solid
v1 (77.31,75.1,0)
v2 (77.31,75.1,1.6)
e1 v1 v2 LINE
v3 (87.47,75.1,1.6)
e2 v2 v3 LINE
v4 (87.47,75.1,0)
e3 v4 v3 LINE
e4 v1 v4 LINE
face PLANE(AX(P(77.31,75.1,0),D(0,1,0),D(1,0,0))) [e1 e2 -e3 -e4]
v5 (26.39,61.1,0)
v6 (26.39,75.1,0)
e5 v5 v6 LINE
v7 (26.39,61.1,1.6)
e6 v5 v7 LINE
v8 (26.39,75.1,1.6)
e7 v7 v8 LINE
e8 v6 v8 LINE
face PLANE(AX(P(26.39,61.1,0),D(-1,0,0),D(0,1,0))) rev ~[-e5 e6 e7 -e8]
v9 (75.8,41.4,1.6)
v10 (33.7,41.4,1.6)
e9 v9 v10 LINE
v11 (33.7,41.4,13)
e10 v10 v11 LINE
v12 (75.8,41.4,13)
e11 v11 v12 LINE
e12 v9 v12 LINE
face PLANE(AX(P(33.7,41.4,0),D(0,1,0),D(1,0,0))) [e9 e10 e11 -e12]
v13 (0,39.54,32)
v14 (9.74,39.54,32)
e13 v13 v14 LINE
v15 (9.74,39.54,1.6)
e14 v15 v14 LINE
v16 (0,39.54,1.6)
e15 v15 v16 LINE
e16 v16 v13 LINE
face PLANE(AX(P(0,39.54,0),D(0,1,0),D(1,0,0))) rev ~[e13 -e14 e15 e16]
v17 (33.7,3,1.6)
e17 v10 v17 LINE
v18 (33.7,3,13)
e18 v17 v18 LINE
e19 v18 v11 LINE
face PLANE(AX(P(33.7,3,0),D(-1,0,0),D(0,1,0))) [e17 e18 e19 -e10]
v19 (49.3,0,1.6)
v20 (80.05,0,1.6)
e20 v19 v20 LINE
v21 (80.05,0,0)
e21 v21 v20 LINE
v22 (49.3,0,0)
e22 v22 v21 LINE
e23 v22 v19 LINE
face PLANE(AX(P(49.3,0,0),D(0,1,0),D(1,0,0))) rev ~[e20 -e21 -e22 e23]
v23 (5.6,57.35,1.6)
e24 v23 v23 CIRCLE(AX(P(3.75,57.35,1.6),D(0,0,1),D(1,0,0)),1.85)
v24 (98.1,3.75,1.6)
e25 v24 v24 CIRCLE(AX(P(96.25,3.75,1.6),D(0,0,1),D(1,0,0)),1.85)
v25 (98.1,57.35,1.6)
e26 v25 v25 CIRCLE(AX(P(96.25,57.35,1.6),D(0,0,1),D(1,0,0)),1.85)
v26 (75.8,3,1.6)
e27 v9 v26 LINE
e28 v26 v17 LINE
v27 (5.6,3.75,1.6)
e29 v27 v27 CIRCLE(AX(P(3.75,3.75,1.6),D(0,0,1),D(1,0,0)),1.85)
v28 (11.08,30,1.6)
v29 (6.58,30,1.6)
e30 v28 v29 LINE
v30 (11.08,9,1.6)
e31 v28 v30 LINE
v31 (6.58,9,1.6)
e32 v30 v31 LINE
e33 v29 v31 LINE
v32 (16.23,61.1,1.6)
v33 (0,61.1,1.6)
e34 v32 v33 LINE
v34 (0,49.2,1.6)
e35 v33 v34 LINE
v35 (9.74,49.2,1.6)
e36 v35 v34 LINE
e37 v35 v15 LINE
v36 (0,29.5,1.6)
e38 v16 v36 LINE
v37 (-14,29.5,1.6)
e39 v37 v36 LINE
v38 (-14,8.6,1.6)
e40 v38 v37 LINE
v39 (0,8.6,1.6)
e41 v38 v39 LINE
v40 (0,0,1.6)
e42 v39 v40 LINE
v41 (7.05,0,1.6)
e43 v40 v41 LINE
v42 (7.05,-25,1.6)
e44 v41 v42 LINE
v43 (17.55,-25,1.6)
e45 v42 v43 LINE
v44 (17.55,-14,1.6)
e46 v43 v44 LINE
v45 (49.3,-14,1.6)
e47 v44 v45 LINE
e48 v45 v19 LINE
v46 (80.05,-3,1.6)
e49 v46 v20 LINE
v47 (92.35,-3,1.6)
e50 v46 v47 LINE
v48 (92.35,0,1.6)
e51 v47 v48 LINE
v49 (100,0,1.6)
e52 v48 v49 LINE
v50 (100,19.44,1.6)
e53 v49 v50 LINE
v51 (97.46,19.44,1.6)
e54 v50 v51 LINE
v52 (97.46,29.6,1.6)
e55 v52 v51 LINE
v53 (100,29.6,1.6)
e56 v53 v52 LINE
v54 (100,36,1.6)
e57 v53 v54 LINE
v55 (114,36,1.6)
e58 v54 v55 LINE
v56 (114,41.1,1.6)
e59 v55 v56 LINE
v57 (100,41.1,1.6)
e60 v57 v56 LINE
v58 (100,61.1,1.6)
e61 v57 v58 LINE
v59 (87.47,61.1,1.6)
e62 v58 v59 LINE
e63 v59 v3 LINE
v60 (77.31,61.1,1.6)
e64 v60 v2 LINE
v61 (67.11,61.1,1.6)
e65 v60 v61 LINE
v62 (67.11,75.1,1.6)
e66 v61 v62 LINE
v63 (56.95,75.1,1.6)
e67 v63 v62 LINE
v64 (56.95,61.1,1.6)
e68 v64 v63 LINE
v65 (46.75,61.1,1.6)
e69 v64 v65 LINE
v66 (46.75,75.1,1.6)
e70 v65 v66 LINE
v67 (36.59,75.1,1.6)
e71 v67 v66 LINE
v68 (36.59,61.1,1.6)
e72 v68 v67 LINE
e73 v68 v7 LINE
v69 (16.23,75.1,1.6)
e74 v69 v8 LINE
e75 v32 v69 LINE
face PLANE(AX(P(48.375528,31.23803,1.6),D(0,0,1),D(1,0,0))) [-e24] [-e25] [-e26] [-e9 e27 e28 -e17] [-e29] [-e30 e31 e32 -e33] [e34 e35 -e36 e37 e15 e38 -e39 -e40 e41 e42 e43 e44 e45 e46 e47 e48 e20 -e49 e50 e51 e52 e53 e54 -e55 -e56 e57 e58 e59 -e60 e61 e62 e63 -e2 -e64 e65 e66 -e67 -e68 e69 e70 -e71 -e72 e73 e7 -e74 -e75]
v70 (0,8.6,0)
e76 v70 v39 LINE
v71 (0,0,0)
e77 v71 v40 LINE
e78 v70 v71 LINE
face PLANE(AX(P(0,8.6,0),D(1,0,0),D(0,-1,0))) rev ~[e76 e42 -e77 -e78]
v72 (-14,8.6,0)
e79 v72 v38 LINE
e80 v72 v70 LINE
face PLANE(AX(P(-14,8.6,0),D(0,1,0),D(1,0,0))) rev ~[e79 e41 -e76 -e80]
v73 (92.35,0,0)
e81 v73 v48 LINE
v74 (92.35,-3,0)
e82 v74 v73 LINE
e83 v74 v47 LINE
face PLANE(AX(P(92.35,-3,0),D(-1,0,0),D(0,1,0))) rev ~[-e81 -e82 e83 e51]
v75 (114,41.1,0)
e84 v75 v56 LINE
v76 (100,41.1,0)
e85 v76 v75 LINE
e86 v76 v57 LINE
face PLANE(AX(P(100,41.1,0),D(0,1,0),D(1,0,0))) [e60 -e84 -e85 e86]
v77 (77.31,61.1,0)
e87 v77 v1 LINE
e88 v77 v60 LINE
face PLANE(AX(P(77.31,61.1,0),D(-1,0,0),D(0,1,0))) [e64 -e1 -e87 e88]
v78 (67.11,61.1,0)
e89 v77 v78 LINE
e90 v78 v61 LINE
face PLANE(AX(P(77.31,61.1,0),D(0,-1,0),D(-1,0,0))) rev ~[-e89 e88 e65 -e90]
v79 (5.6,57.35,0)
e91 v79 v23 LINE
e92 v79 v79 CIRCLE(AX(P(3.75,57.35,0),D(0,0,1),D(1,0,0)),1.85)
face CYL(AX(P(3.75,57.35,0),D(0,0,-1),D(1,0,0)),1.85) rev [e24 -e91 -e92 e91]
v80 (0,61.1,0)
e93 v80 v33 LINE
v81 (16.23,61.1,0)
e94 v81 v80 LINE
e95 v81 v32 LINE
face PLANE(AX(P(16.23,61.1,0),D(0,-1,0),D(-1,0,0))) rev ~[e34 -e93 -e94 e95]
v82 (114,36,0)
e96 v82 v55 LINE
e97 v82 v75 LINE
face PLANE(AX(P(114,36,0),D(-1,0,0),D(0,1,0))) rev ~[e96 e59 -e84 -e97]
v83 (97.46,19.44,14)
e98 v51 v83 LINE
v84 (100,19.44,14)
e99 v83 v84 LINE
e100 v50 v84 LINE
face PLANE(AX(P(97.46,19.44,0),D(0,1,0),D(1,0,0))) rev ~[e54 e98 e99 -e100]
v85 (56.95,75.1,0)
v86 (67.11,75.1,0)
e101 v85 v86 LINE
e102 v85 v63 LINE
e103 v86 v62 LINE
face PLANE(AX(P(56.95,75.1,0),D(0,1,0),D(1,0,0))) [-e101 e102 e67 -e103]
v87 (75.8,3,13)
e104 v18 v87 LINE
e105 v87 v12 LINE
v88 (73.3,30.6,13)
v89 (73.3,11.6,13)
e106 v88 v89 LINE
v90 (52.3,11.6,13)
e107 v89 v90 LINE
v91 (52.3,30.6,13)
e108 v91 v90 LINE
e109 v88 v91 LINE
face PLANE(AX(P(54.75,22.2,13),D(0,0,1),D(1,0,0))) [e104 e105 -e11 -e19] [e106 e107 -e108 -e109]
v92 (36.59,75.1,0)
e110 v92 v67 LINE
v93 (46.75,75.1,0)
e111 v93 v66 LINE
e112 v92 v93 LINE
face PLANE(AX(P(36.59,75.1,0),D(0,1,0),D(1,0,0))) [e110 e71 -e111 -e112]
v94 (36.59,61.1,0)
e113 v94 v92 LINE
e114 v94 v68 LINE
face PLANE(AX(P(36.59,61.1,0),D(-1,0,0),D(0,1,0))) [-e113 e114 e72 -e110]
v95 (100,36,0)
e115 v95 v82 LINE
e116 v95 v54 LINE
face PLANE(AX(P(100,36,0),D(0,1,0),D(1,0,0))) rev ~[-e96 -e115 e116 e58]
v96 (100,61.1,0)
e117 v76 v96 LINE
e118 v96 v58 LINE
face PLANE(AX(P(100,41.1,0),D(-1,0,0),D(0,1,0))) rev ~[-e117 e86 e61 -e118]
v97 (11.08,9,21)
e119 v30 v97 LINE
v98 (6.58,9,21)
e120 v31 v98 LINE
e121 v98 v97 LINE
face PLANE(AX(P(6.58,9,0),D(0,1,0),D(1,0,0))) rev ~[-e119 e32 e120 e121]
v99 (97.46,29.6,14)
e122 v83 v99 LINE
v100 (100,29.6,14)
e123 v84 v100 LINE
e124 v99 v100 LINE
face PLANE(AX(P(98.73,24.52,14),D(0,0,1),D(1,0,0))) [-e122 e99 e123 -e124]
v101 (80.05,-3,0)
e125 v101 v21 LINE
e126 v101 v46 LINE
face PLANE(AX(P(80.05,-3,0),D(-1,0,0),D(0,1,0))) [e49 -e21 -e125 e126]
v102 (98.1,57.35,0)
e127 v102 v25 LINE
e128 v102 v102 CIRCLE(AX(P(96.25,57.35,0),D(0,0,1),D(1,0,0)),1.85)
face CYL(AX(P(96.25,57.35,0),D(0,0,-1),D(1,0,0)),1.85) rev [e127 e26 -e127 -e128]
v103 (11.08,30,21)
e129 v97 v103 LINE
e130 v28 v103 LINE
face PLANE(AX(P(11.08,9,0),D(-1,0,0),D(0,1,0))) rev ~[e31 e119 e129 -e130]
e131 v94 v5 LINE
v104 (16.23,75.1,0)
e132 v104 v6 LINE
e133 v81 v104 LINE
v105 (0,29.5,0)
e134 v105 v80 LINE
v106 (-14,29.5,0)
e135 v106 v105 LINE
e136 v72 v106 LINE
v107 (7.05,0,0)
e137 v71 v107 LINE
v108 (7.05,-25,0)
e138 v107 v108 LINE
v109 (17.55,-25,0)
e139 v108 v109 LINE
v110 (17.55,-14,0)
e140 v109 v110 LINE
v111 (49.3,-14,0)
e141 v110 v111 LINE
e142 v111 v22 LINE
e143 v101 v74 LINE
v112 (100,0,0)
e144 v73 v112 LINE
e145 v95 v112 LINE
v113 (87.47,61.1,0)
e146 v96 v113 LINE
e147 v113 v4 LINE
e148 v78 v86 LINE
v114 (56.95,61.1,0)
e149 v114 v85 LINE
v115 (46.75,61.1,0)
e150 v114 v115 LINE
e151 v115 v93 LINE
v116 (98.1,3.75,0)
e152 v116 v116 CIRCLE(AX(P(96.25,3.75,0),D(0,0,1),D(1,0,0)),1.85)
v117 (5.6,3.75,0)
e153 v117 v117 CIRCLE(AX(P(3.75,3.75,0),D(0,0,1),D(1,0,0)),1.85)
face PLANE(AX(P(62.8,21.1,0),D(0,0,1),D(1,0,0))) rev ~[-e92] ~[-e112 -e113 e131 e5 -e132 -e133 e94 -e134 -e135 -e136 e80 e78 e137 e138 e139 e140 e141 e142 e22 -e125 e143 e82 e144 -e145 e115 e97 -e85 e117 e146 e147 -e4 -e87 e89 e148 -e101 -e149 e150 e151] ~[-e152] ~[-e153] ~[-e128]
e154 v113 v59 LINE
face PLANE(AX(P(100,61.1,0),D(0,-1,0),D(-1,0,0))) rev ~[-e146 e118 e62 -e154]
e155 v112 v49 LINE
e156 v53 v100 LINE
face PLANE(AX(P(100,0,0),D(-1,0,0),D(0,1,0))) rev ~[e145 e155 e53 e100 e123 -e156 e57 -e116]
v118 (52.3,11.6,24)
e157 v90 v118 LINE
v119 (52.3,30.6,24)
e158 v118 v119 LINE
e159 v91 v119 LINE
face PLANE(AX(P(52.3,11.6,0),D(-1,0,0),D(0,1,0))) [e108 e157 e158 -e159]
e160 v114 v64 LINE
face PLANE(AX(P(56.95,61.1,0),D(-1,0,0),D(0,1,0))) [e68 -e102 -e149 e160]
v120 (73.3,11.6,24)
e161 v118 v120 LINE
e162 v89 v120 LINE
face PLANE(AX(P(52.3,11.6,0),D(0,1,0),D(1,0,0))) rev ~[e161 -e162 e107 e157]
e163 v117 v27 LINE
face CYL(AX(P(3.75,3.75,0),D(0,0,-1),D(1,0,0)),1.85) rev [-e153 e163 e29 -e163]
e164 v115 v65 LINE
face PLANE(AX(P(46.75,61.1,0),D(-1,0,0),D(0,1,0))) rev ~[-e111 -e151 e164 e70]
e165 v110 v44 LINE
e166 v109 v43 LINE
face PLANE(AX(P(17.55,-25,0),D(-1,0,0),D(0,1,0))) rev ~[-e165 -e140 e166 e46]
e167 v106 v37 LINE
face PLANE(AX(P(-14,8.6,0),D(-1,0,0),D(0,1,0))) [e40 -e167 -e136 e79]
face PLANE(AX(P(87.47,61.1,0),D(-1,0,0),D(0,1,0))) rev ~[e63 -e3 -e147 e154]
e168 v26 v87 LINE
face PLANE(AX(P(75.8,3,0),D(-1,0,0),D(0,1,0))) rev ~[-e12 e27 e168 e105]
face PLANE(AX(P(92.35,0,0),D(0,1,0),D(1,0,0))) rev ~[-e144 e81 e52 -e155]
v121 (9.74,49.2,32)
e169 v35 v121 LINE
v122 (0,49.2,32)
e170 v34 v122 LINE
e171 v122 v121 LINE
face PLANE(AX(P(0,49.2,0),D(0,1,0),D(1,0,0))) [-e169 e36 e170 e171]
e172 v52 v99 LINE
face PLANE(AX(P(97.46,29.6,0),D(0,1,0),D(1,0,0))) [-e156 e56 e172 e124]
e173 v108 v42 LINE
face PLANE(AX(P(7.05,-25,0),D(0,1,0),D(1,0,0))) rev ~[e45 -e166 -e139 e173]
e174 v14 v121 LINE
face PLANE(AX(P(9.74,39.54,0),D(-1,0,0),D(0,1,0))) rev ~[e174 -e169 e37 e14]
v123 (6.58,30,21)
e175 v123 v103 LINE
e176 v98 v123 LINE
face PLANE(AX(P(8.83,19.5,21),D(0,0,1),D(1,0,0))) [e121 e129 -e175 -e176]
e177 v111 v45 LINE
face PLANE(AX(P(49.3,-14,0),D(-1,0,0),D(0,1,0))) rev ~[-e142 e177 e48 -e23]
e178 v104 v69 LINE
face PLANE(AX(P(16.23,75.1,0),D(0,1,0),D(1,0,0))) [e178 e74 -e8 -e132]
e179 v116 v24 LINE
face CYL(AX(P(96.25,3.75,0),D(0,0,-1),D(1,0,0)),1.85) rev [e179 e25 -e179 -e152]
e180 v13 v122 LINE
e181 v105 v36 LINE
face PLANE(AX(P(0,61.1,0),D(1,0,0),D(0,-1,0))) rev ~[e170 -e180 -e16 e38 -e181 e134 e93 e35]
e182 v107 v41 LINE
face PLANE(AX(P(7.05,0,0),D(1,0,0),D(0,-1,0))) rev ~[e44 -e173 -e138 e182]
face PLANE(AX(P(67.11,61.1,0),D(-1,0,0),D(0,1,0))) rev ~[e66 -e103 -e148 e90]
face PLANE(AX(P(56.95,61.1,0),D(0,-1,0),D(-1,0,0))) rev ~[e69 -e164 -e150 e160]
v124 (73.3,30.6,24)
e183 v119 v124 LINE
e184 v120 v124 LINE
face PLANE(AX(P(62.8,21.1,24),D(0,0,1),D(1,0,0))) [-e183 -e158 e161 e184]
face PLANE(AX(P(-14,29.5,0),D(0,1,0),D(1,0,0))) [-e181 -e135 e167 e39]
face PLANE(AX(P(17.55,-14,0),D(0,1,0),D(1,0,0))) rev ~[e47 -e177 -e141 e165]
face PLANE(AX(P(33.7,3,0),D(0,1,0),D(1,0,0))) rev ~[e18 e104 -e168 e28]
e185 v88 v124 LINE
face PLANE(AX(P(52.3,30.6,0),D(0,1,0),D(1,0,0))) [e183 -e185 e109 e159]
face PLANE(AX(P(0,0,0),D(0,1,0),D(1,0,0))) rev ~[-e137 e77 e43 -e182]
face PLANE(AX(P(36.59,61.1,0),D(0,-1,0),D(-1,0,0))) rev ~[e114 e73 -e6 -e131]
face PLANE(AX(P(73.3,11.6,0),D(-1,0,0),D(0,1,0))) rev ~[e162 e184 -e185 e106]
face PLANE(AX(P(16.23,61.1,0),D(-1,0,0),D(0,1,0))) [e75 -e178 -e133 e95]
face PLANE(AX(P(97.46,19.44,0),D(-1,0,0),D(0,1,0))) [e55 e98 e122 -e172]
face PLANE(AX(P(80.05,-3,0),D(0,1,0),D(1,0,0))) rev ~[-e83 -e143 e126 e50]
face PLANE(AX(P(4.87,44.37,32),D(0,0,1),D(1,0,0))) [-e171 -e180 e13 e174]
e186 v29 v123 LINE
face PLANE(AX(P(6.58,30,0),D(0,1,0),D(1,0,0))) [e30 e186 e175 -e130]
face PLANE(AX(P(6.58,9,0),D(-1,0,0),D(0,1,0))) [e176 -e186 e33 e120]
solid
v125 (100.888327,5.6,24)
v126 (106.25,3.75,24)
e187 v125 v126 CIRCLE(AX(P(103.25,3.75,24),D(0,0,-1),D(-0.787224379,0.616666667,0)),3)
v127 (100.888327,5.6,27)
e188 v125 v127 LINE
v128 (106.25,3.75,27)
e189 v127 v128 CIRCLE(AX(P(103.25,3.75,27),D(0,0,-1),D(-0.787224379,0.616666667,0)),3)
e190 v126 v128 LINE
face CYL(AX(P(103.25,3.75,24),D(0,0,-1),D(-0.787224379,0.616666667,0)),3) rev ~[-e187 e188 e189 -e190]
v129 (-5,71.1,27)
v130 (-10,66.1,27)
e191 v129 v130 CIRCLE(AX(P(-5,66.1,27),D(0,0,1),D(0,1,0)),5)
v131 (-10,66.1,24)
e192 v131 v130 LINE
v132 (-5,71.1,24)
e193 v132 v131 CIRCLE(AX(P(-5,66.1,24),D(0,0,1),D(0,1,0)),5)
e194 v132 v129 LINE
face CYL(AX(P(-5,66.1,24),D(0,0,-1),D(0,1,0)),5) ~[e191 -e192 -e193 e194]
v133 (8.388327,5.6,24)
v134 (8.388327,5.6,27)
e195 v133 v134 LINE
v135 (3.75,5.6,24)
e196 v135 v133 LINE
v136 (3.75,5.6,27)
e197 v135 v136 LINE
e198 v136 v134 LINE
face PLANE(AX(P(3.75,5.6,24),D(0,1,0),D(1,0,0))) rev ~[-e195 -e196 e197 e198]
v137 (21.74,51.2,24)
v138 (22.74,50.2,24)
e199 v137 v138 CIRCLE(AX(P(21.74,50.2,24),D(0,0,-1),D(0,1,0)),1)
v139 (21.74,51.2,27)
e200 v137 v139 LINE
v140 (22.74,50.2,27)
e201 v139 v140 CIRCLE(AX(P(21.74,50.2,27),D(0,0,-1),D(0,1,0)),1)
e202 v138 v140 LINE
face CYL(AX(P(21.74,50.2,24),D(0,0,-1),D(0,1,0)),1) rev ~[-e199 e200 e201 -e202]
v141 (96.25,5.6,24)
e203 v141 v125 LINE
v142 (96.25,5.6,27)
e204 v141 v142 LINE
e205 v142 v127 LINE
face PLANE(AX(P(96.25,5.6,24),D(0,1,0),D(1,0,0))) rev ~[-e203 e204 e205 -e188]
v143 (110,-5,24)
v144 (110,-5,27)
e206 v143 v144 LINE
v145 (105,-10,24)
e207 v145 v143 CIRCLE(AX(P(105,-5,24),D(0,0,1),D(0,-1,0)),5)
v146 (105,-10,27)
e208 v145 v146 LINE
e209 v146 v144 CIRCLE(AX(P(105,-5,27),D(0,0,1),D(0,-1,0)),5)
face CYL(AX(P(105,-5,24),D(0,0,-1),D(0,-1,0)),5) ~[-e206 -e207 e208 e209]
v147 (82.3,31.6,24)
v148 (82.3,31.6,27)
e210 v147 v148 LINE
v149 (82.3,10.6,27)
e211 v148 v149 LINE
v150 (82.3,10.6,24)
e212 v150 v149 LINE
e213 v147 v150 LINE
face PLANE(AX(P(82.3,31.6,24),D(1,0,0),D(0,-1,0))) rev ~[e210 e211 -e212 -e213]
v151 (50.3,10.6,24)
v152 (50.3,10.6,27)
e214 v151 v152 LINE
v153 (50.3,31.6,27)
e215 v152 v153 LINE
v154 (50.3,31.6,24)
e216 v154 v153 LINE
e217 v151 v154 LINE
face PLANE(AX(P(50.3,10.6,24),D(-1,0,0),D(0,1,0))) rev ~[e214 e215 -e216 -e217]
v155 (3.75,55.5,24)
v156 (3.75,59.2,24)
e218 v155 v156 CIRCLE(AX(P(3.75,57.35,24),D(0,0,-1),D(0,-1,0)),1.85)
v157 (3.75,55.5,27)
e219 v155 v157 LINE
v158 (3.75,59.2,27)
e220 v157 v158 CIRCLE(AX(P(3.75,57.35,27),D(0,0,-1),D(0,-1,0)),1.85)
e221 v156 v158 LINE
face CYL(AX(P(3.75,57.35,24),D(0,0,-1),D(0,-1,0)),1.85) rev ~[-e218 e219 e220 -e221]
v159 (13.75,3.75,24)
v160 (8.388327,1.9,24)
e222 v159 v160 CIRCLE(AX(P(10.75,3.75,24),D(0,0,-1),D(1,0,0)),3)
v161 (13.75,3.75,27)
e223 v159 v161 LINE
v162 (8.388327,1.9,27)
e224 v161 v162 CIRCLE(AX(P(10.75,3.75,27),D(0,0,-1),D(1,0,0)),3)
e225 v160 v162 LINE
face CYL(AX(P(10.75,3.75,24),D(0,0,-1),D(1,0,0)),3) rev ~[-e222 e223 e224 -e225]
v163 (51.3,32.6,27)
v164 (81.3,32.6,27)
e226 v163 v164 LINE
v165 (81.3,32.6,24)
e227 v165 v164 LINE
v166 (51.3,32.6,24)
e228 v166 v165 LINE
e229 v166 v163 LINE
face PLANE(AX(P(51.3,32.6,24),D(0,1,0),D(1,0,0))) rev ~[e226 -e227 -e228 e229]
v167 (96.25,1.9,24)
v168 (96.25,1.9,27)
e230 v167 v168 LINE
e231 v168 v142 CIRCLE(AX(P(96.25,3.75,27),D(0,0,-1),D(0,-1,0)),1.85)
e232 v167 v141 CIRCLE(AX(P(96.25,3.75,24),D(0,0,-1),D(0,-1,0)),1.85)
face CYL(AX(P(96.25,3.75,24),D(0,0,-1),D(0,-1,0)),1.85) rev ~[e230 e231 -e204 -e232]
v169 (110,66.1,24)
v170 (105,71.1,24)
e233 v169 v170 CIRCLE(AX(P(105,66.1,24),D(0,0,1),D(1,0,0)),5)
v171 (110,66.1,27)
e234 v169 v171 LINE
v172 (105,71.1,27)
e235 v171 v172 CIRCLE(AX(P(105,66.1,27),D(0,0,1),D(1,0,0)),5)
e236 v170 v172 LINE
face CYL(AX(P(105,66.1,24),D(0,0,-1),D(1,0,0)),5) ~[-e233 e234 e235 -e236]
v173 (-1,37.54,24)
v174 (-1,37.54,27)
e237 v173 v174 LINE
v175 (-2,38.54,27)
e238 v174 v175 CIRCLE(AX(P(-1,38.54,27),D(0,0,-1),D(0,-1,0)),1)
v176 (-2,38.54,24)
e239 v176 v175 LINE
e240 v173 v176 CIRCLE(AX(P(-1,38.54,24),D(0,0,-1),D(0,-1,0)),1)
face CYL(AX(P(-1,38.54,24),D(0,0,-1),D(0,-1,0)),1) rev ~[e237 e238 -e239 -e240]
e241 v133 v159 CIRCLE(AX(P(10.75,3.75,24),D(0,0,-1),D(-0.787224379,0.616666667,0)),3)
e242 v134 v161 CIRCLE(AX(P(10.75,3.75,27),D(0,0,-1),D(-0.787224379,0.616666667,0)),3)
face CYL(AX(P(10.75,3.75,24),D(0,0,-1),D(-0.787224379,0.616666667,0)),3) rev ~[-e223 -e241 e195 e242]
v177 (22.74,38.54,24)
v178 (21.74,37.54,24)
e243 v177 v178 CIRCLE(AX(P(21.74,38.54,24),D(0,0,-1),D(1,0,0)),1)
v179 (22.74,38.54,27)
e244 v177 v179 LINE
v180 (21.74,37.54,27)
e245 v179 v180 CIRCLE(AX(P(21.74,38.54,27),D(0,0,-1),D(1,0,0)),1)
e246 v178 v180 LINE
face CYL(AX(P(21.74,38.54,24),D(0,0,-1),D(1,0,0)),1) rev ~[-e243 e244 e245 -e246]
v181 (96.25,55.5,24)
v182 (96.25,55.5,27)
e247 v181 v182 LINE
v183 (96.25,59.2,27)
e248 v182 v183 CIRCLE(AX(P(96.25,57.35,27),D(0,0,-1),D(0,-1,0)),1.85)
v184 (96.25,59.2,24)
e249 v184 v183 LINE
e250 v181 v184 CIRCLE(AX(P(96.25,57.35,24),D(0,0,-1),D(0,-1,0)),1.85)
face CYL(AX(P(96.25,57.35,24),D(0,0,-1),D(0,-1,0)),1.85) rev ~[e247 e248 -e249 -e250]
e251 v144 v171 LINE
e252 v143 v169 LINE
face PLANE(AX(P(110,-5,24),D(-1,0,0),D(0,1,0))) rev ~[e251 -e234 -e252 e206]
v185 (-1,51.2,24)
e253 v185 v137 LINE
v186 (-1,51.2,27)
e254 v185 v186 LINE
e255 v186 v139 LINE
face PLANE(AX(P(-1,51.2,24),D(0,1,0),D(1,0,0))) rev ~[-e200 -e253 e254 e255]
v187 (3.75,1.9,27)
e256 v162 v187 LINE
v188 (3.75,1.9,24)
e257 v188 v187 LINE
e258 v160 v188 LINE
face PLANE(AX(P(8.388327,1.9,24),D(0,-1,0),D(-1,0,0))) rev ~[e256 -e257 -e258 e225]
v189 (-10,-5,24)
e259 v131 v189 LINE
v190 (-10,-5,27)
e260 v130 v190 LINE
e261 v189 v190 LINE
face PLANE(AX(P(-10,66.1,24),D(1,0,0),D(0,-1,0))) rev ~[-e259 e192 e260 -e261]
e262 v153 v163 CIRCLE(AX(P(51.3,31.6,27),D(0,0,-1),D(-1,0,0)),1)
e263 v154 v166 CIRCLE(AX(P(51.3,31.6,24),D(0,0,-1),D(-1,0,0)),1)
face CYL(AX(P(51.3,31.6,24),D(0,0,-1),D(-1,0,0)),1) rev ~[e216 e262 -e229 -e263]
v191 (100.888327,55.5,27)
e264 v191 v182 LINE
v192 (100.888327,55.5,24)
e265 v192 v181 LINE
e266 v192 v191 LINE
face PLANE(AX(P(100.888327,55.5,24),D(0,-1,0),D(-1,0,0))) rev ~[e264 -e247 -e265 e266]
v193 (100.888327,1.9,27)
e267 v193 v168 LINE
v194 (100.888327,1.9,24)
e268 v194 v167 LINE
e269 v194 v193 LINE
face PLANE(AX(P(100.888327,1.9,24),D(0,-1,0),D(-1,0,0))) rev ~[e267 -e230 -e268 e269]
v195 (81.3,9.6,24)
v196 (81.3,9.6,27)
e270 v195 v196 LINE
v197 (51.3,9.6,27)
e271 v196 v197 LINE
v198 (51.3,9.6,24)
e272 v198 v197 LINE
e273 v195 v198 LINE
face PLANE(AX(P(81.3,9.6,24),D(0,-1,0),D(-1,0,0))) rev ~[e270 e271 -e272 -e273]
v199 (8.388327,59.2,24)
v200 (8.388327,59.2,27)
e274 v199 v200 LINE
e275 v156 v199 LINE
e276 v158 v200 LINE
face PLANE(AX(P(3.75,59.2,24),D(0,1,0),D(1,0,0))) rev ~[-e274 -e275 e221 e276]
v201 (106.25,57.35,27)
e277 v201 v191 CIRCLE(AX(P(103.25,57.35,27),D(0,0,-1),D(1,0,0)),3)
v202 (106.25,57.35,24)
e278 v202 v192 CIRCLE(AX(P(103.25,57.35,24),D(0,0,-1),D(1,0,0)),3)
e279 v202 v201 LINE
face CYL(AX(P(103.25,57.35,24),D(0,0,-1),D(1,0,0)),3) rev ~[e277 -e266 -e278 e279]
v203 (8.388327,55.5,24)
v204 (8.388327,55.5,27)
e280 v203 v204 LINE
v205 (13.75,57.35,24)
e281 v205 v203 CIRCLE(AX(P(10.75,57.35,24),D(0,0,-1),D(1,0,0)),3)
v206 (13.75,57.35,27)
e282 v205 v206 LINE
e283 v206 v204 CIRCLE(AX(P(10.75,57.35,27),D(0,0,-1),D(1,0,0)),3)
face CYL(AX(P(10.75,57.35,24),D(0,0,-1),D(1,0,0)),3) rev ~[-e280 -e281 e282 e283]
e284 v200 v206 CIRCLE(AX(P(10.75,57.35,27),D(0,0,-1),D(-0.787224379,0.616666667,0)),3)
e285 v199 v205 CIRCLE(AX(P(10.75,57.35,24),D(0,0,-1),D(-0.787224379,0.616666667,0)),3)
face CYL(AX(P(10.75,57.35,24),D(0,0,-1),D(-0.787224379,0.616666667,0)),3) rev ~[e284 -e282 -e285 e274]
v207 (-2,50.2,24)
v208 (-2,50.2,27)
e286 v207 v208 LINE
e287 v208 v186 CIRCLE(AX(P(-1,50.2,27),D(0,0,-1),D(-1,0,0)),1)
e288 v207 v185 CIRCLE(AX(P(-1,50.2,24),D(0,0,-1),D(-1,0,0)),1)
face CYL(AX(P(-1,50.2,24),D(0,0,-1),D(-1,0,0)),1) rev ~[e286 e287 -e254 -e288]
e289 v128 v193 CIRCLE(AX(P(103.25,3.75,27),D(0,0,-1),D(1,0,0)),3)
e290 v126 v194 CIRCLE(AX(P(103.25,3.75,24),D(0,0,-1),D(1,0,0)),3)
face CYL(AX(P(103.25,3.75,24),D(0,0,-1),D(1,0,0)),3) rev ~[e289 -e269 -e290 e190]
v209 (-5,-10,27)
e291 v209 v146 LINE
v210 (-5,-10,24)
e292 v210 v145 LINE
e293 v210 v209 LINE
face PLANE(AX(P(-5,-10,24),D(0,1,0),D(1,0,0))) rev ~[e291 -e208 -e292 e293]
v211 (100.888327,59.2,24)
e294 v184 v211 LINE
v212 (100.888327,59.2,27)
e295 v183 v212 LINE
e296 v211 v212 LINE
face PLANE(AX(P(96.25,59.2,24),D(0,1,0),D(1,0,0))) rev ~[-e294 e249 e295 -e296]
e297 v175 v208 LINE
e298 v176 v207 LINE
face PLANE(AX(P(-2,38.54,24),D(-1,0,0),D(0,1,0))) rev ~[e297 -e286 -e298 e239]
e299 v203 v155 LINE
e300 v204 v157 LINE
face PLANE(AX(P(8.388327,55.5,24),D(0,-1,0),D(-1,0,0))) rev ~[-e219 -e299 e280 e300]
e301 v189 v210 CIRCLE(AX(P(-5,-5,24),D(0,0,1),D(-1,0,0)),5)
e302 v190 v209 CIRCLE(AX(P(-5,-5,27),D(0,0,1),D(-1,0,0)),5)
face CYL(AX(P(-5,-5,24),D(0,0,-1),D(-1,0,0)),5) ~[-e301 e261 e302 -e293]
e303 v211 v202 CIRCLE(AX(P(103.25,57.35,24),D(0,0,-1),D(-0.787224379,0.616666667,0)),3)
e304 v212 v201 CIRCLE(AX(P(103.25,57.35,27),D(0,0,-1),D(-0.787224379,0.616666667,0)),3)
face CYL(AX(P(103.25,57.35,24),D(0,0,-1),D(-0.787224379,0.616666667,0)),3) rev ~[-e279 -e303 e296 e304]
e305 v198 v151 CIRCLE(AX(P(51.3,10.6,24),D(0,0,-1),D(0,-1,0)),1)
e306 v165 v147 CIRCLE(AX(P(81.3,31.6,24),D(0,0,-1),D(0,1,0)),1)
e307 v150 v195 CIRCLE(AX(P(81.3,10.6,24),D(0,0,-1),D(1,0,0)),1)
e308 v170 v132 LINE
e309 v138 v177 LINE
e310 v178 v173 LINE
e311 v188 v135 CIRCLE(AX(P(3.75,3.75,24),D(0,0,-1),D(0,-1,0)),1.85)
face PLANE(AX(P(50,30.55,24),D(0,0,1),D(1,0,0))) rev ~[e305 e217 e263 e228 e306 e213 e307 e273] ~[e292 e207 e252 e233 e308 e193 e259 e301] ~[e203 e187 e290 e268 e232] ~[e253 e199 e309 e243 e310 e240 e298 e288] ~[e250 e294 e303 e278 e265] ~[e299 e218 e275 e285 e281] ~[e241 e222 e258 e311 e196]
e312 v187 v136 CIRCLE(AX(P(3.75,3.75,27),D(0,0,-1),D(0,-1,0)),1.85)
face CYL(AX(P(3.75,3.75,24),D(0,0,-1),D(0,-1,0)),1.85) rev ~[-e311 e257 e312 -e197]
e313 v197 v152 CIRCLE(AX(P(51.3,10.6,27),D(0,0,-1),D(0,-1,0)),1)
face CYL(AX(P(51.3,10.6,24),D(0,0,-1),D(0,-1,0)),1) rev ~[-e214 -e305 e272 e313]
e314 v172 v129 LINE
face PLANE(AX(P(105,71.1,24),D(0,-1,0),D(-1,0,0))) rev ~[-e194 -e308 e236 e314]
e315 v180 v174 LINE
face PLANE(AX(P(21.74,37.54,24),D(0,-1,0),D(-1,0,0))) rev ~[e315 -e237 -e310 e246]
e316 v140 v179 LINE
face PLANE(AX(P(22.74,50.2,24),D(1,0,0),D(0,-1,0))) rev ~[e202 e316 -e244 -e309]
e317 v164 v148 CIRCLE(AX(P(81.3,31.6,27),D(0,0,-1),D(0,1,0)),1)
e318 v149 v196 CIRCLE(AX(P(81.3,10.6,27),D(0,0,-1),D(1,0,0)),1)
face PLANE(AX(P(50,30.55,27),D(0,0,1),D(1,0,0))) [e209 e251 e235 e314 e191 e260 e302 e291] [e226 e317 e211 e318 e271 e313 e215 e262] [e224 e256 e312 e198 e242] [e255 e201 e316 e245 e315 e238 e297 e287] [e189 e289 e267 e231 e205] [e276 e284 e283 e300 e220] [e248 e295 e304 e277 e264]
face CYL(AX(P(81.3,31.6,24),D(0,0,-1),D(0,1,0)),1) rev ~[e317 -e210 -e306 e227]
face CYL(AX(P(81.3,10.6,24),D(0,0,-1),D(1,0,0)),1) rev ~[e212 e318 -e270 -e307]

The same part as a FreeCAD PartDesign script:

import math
import FreeCAD as App
import Part
import Sketcher
Q = App.Units.Quantity


def add_polygon(sketch, points):
    """Adds a closed chain of lines whose ends are joined by coincident constraints."""
    first, n = sketch.GeometryCount, len(points)
    for a, b in zip(points, points[1:] + points[:1]):
        sketch.addGeometry(Part.LineSegment(App.Vector(*a, 0), App.Vector(*b, 0)), False)
    for i in range(n):
        sketch.addConstraint(Sketcher.Constraint("Coincident", first + i, 2, first + (i + 1) % n, 1))

doc = App.newDocument("Part")
body = doc.addObject("PartDesign::Body", "Body")

sketch1 = body.newObject("Sketcher::SketchObject", "Sketch")
sketch1.AttachmentSupport = (doc.getObject("XY_Plane"), [""])
sketch1.MapMode = "FlatFace"
add_polygon(sketch1, [(0, 0), (7.05, 0), (7.05, -25), (17.55, -25), (17.55, -14), (49.3, -14), (49.3, 0), (80.05, 0), (80.05, -3), (92.35, -3), (92.35, 0), (100, 0), (100, 36), (114, 36), (114, 41.1), (100, 41.1), (100, 61.1), (87.47, 61.1), (87.47, 75.1), (77.31, 75.1), (77.31, 61.1), (67.11, 61.1), (67.11, 75.1), (56.95, 75.1), (56.95, 61.1), (46.75, 61.1), (46.75, 75.1), (36.59, 75.1), (36.59, 61.1), (26.39, 61.1), (26.39, 75.1), (16.23, 75.1), (16.23, 61.1), (0, 61.1), (0, 29.5), (-14, 29.5), (-14, 8.6), (0, 8.6)])
sketch1.addGeometry(Part.Circle(App.Vector(3.75, 3.75, 0), App.Vector(0, 0, 1), 1.85), False)
sketch1.addGeometry(Part.Circle(App.Vector(96.25, 3.75, 0), App.Vector(0, 0, 1), 1.85), False)
sketch1.addGeometry(Part.Circle(App.Vector(3.75, 57.35, 0), App.Vector(0, 0, 1), 1.85), False)
sketch1.addGeometry(Part.Circle(App.Vector(96.25, 57.35, 0), App.Vector(0, 0, 1), 1.85), False)
sketch1.addConstraint([
    Sketcher.Constraint("Horizontal", 0),
    Sketcher.Constraint("Vertical", 1),
    Sketcher.Constraint("Horizontal", 2),
    Sketcher.Constraint("Vertical", 3),
    Sketcher.Constraint("Horizontal", 4),
    Sketcher.Constraint("Vertical", 5),
    Sketcher.Constraint("Horizontal", 6),
    Sketcher.Constraint("Vertical", 7),
    Sketcher.Constraint("Horizontal", 8),
    Sketcher.Constraint("Vertical", 9),
    Sketcher.Constraint("Horizontal", 10),
    Sketcher.Constraint("Vertical", 11),
    Sketcher.Constraint("Horizontal", 12),
    Sketcher.Constraint("Vertical", 13),
    Sketcher.Constraint("Horizontal", 14),
    Sketcher.Constraint("Vertical", 15),
    Sketcher.Constraint("Horizontal", 16),
    Sketcher.Constraint("Vertical", 17),
    Sketcher.Constraint("Horizontal", 18),
    Sketcher.Constraint("Vertical", 19),
    Sketcher.Constraint("Horizontal", 20),
    Sketcher.Constraint("Vertical", 21),
    Sketcher.Constraint("Horizontal", 22),
    Sketcher.Constraint("Vertical", 23),
    Sketcher.Constraint("Horizontal", 24),
    Sketcher.Constraint("Vertical", 25),
    Sketcher.Constraint("Horizontal", 26),
    Sketcher.Constraint("Vertical", 27),
    Sketcher.Constraint("Horizontal", 28),
    Sketcher.Constraint("Vertical", 29),
    Sketcher.Constraint("Horizontal", 30),
    Sketcher.Constraint("Vertical", 31),
    Sketcher.Constraint("Horizontal", 32),
    Sketcher.Constraint("Vertical", 33),
    Sketcher.Constraint("Horizontal", 34),
    Sketcher.Constraint("Vertical", 35),
    Sketcher.Constraint("Horizontal", 36),
    Sketcher.Constraint("Vertical", 37),
    Sketcher.Constraint("Coincident", 37, 2, -1, 1),
    Sketcher.Constraint("Equal", 38, 39),
    Sketcher.Constraint("Equal", 39, 40),
    Sketcher.Constraint("Equal", 40, 41),
    Sketcher.Constraint("PointOnObject", 5, 2, -1),
    Sketcher.Constraint("PointOnObject", 9, 2, -1),
    Sketcher.Constraint("PointOnObject", 32, 2, -2),
    Sketcher.Constraint("Horizontal", 38, 3, 39, 3),
    Sketcher.Constraint("Horizontal", 40, 3, 41, 3),
    Sketcher.Constraint("Horizontal", 16, 2, 19, 2),
    Sketcher.Constraint("Horizontal", 18, 2, 21, 2),
    Sketcher.Constraint("Horizontal", 20, 2, 23, 2),
    Sketcher.Constraint("Horizontal", 22, 2, 25, 2),
    Sketcher.Constraint("Horizontal", 24, 2, 27, 2),
    Sketcher.Constraint("Horizontal", 26, 2, 29, 2),
    Sketcher.Constraint("Horizontal", 28, 2, 31, 2),
    Sketcher.Constraint("Vertical", 38, 3, 40, 3),
    Sketcher.Constraint("Vertical", 39, 3, 41, 3),
    Sketcher.Constraint("Vertical", 11, 2, 14, 2),
    Sketcher.Constraint("Equal", 18, 22),
    Sketcher.Constraint("Equal", 20, 24),
    Sketcher.Constraint("Equal", 22, 26),
    Sketcher.Constraint("Equal", 24, 28),
    Sketcher.Constraint("Equal", 26, 30),
    Sketcher.Constraint("Equal", 14, 34),
    Sketcher.Constraint("Equal", 36, 5),
    Sketcher.Constraint("Equal", 5, 17),
    Sketcher.Constraint("Diameter", 38, Q("3.7 mm")),
    Sketcher.Constraint("DistanceX", 12, 1, 12, 2, Q("14 mm")),
    Sketcher.Constraint("DistanceY", 1, 2, 1, 1, Q("25 mm")),
    Sketcher.Constraint("DistanceY", 7, 2, 7, 1, Q("3 mm")),
    Sketcher.Constraint("DistanceY", 11, 1, 11, 2, Q("36 mm")),
    Sketcher.Constraint("DistanceY", 15, 1, 15, 2, Q("20 mm")),
    Sketcher.Constraint("DistanceX", 2, 1, 2, 2, Q("10.5 mm")),
    Sketcher.Constraint("DistanceX", 8, 1, 8, 2, Q("12.3 mm")),
    Sketcher.Constraint("DistanceX", 20, 2, 20, 1, Q("10.2 mm")),
    Sketcher.Constraint("DistanceY", 13, 1, 13, 2, Q("5.1 mm")),
    Sketcher.Constraint("DistanceY", 33, 2, 33, 1, Q("31.6 mm")),
    Sketcher.Constraint("DistanceY", 35, 2, 35, 1, Q("20.9 mm")),
    Sketcher.Constraint("DistanceX", -1, 1, 10, 2, Q("100 mm")),
    Sketcher.Constraint("DistanceX", 0, 1, 0, 2, Q("7.05 mm")),
    Sketcher.Constraint("DistanceX", 4, 1, 4, 2, Q("31.75 mm")),
    Sketcher.Constraint("DistanceX", 6, 1, 6, 2, Q("30.75 mm")),
    Sketcher.Constraint("DistanceX", 16, 2, 16, 1, Q("12.53 mm")),
    Sketcher.Constraint("DistanceX", 18, 2, 18, 1, Q("10.16 mm")),
    Sketcher.Constraint("DistanceX", 38, 3, 39, 3, Q("92.5 mm")),
    Sketcher.Constraint("DistanceY", 38, 3, 40, 3, Q("53.6 mm")),
    Sketcher.Constraint("DistanceX", 38, 3, 0, 2, Q("3.3 mm")),
    Sketcher.Constraint("DistanceY", -1, 1, 38, 3, Q("3.75 mm")),
])
pad1 = body.newObject("PartDesign::Pad", "Pad")
pad1.Profile = sketch1
pad1.Length = 1.6

sketch2 = body.newObject("Sketcher::SketchObject", "Sketch001")
sketch2.AttachmentSupport = (doc.getObject("XY_Plane"), [""])
sketch2.MapMode = "FlatFace"
add_polygon(sketch2, [(0, 49.2), (0, 39.54), (9.74, 39.54), (9.74, 49.2)])
sketch2.addConstraint([
    Sketcher.Constraint("Vertical", 0),
    Sketcher.Constraint("Horizontal", 1),
    Sketcher.Constraint("Vertical", 2),
    Sketcher.Constraint("Horizontal", 3),
    Sketcher.Constraint("PointOnObject", 0, 2, -2),
    Sketcher.Constraint("DistanceX", 1, 1, 1, 2, Q("9.74 mm")),
    Sketcher.Constraint("DistanceY", 0, 2, 0, 1, Q("9.66 mm")),
    Sketcher.Constraint("DistanceY", -1, 1, 2, 2, Q("49.2 mm")),
])
pad2 = body.newObject("PartDesign::Pad", "Pad001")
pad2.Profile = sketch2
pad2.Length = 32

sketch3 = body.newObject("Sketcher::SketchObject", "Sketch002")
sketch3.AttachmentSupport = (doc.getObject("XY_Plane"), [""])
sketch3.MapMode = "FlatFace"
add_polygon(sketch3, [(6.58, 30), (6.58, 9), (11.08, 9), (11.08, 30)])
sketch3.addConstraint([
    Sketcher.Constraint("Vertical", 0),
    Sketcher.Constraint("Horizontal", 1),
    Sketcher.Constraint("Vertical", 2),
    Sketcher.Constraint("Horizontal", 3),
    Sketcher.Constraint("DistanceY", 0, 2, 0, 1, Q("21 mm")),
    Sketcher.Constraint("DistanceX", 1, 1, 1, 2, Q("4.5 mm")),
    Sketcher.Constraint("DistanceY", -1, 1, 0, 2, Q("9 mm")),
    Sketcher.Constraint("DistanceX", -1, 1, 0, 2, Q("6.58 mm")),
])
pad3 = body.newObject("PartDesign::Pad", "Pad002")
pad3.Profile = sketch3
pad3.Length = 21

sketch4 = body.newObject("Sketcher::SketchObject", "Sketch003")
sketch4.AttachmentSupport = (doc.getObject("XY_Plane"), [""])
sketch4.MapMode = "FlatFace"
add_polygon(sketch4, [(97.46, 29.6), (97.46, 19.44), (100, 19.44), (100, 29.6)])
sketch4.addConstraint([
    Sketcher.Constraint("Vertical", 0),
    Sketcher.Constraint("Horizontal", 1),
    Sketcher.Constraint("Vertical", 2),
    Sketcher.Constraint("Horizontal", 3),
    Sketcher.Constraint("DistanceX", -1, 1, 1, 2, Q("100 mm")),
    Sketcher.Constraint("DistanceX", 1, 1, 1, 2, Q("2.54 mm")),
    Sketcher.Constraint("DistanceY", 0, 2, 0, 1, Q("10.16 mm")),
    Sketcher.Constraint("DistanceY", -1, 1, 2, 2, Q("29.6 mm")),
])
pad4 = body.newObject("PartDesign::Pad", "Pad003")
pad4.Profile = sketch4
pad4.Length = 14

sketch5 = body.newObject("Sketcher::SketchObject", "Sketch004")
sketch5.AttachmentSupport = (doc.getObject("XY_Plane"), [""])
sketch5.MapMode = "FlatFace"
add_polygon(sketch5, [(33.7, 41.4), (33.7, 3), (75.8, 3), (75.8, 41.4)])
sketch5.addConstraint([
    Sketcher.Constraint("Vertical", 0),
    Sketcher.Constraint("Horizontal", 1),
    Sketcher.Constraint("Vertical", 2),
    Sketcher.Constraint("Horizontal", 3),
    Sketcher.Constraint("DistanceX", 1, 1, 1, 2, Q("42.1 mm")),
    Sketcher.Constraint("DistanceY", 0, 2, 0, 1, Q("38.4 mm")),
    Sketcher.Constraint("DistanceY", -1, 1, 0, 2, Q("3 mm")),
    Sketcher.Constraint("DistanceX", -1, 1, 0, 2, Q("33.7 mm")),
])
pad5 = body.newObject("PartDesign::Pad", "Pad004")
pad5.Profile = sketch5
pad5.Length = 13

sketch6 = body.newObject("Sketcher::SketchObject", "Sketch005")
sketch6.AttachmentSupport = (doc.getObject("XY_Plane"), [""])
sketch6.MapMode = "FlatFace"
add_polygon(sketch6, [(52.3, 30.6), (52.3, 11.6), (73.3, 11.6), (73.3, 30.6)])
sketch6.addConstraint([
    Sketcher.Constraint("Vertical", 0),
    Sketcher.Constraint("Horizontal", 1),
    Sketcher.Constraint("Vertical", 2),
    Sketcher.Constraint("Horizontal", 3),
    Sketcher.Constraint("DistanceX", 1, 1, 1, 2, Q("21 mm")),
    Sketcher.Constraint("DistanceY", 0, 2, 0, 1, Q("19 mm")),
    Sketcher.Constraint("DistanceX", -1, 1, 0, 2, Q("52.3 mm")),
    Sketcher.Constraint("DistanceY", -1, 1, 0, 2, Q("11.6 mm")),
])
pad6 = body.newObject("PartDesign::Pad", "Pad005")
pad6.Profile = sketch6
pad6.Length = 24
body2 = doc.addObject("PartDesign::Body", "Body001")

sketch7 = body2.newObject("Sketcher::SketchObject", "Sketch006")
sketch7.AttachmentSupport = (doc.getObject("XY_Plane001"), [""])
sketch7.MapMode = "FlatFace"
sketch7.AttachmentOffset = App.Placement(App.Vector(0, 0, 24), App.Rotation())
sketch7.addGeometry([
    Part.LineSegment(App.Vector(105, 71.1, 0), App.Vector(-5, 71.1, 0)),
    Part.ArcOfCircle(Part.Circle(App.Vector(-5, 66.1, 0), App.Vector(0, 0, 1), 5), math.radians(90), math.radians(180)),
    Part.LineSegment(App.Vector(-10, 66.1, 0), App.Vector(-10, -5, 0)),
    Part.ArcOfCircle(Part.Circle(App.Vector(-5, -5, 0), App.Vector(0, 0, 1), 5), math.radians(180), math.radians(270)),
    Part.LineSegment(App.Vector(-5, -10, 0), App.Vector(105, -10, 0)),
    Part.ArcOfCircle(Part.Circle(App.Vector(105, -5, 0), App.Vector(0, 0, 1), 5), math.radians(-90), math.radians(0)),
    Part.LineSegment(App.Vector(110, -5, 0), App.Vector(110, 66.1, 0)),
    Part.ArcOfCircle(Part.Circle(App.Vector(105, 66.1, 0), App.Vector(0, 0, 1), 5), math.radians(0), math.radians(90)),
    Part.LineSegment(App.Vector(8.388327, 1.9, 0), App.Vector(3.75, 1.9, 0)),
    Part.ArcOfCircle(Part.Circle(App.Vector(3.75, 3.75, 0), App.Vector(0, 0, 1), 1.85), math.radians(90), math.radians(270)),
    Part.LineSegment(App.Vector(3.75, 5.6, 0), App.Vector(8.388327, 5.6, 0)),
    Part.ArcOfCircle(Part.Circle(App.Vector(10.75, 3.75, 0), App.Vector(0, 0, 1), 3), math.radians(0), math.radians(141.926877)),
    Part.ArcOfCircle(Part.Circle(App.Vector(10.75, 3.75, 0), App.Vector(0, 0, 1), 3), math.radians(-141.926877), math.radians(0)),
    Part.LineSegment(App.Vector(100.888327, 1.9, 0), App.Vector(96.25, 1.9, 0)),
    Part.ArcOfCircle(Part.Circle(App.Vector(96.25, 3.75, 0), App.Vector(0, 0, 1), 1.85), math.radians(90), math.radians(270)),
    Part.LineSegment(App.Vector(96.25, 5.6, 0), App.Vector(100.888327, 5.6, 0)),
    Part.ArcOfCircle(Part.Circle(App.Vector(103.25, 3.75, 0), App.Vector(0, 0, 1), 3), math.radians(0), math.radians(141.926877)),
    Part.ArcOfCircle(Part.Circle(App.Vector(103.25, 3.75, 0), App.Vector(0, 0, 1), 3), math.radians(-141.926877), math.radians(0)),
    Part.LineSegment(App.Vector(50.3, 10.6, 0), App.Vector(50.3, 31.6, 0)),
    Part.ArcOfCircle(Part.Circle(App.Vector(51.3, 31.6, 0), App.Vector(0, 0, 1), 1), math.radians(90), math.radians(180)),
    Part.LineSegment(App.Vector(51.3, 32.6, 0), App.Vector(81.3, 32.6, 0)),
    Part.ArcOfCircle(Part.Circle(App.Vector(81.3, 31.6, 0), App.Vector(0, 0, 1), 1), math.radians(0), math.radians(90)),
    Part.LineSegment(App.Vector(82.3, 31.6, 0), App.Vector(82.3, 10.6, 0)),
    Part.ArcOfCircle(Part.Circle(App.Vector(81.3, 10.6, 0), App.Vector(0, 0, 1), 1), math.radians(-90), math.radians(0)),
    Part.LineSegment(App.Vector(81.3, 9.6, 0), App.Vector(51.3, 9.6, 0)),
    Part.ArcOfCircle(Part.Circle(App.Vector(51.3, 10.6, 0), App.Vector(0, 0, 1), 1), math.radians(180), math.radians(270)),
    Part.ArcOfCircle(Part.Circle(App.Vector(21.74, 38.54, 0), App.Vector(0, 0, 1), 1), math.radians(-90), math.radians(0)),
    Part.LineSegment(App.Vector(21.74, 37.54, 0), App.Vector(-1, 37.54, 0)),
    Part.ArcOfCircle(Part.Circle(App.Vector(-1, 38.54, 0), App.Vector(0, 0, 1), 1), math.radians(180), math.radians(270)),
    Part.LineSegment(App.Vector(-2, 38.54, 0), App.Vector(-2, 50.2, 0)),
    Part.ArcOfCircle(Part.Circle(App.Vector(-1, 50.2, 0), App.Vector(0, 0, 1), 1), math.radians(90), math.radians(180)),
    Part.LineSegment(App.Vector(-1, 51.2, 0), App.Vector(21.74, 51.2, 0)),
    Part.ArcOfCircle(Part.Circle(App.Vector(21.74, 50.2, 0), App.Vector(0, 0, 1), 1), math.radians(0), math.radians(90)),
    Part.LineSegment(App.Vector(22.74, 50.2, 0), App.Vector(22.74, 38.54, 0)),
    Part.LineSegment(App.Vector(8.388327, 55.5, 0), App.Vector(3.75, 55.5, 0)),
    Part.ArcOfCircle(Part.Circle(App.Vector(3.75, 57.35, 0), App.Vector(0, 0, 1), 1.85), math.radians(90), math.radians(270)),
    Part.LineSegment(App.Vector(3.75, 59.2, 0), App.Vector(8.388327, 59.2, 0)),
    Part.ArcOfCircle(Part.Circle(App.Vector(10.75, 57.35, 0), App.Vector(0, 0, 1), 3), math.radians(0), math.radians(141.926877)),
    Part.ArcOfCircle(Part.Circle(App.Vector(10.75, 57.35, 0), App.Vector(0, 0, 1), 3), math.radians(-141.926877), math.radians(0)),
    Part.LineSegment(App.Vector(100.888327, 55.5, 0), App.Vector(96.25, 55.5, 0)),
    Part.ArcOfCircle(Part.Circle(App.Vector(96.25, 57.35, 0), App.Vector(0, 0, 1), 1.85), math.radians(90), math.radians(270)),
    Part.LineSegment(App.Vector(96.25, 59.2, 0), App.Vector(100.888327, 59.2, 0)),
    Part.ArcOfCircle(Part.Circle(App.Vector(103.25, 57.35, 0), App.Vector(0, 0, 1), 3), math.radians(0), math.radians(141.926877)),
    Part.ArcOfCircle(Part.Circle(App.Vector(103.25, 57.35, 0), App.Vector(0, 0, 1), 3), math.radians(-141.926877), math.radians(0)),
], False)
sketch7.addConstraint([
    Sketcher.Constraint("Tangent", 0, 2, 1, 1),
    Sketcher.Constraint("Tangent", 1, 2, 2, 1),
    Sketcher.Constraint("Tangent", 2, 2, 3, 1),
    Sketcher.Constraint("Tangent", 3, 2, 4, 1),
    Sketcher.Constraint("Tangent", 4, 2, 5, 1),
    Sketcher.Constraint("Tangent", 5, 2, 6, 1),
    Sketcher.Constraint("Tangent", 6, 2, 7, 1),
    Sketcher.Constraint("Tangent", 7, 2, 0, 1),
    Sketcher.Constraint("Tangent", 8, 2, 9, 2),
    Sketcher.Constraint("Tangent", 9, 1, 10, 1),
    Sketcher.Constraint("Coincident", 10, 2, 11, 2),
    Sketcher.Constraint("Tangent", 11, 1, 12, 2),
    Sketcher.Constraint("Coincident", 12, 1, 8, 1),
    Sketcher.Constraint("Tangent", 13, 2, 14, 2),
    Sketcher.Constraint("Tangent", 14, 1, 15, 1),
    Sketcher.Constraint("Coincident", 15, 2, 16, 2),
    Sketcher.Constraint("Tangent", 16, 1, 17, 2),
    Sketcher.Constraint("Coincident", 17, 1, 13, 1),
    Sketcher.Constraint("Tangent", 18, 2, 19, 2),
    Sketcher.Constraint("Tangent", 19, 1, 20, 1),
    Sketcher.Constraint("Tangent", 20, 2, 21, 2),
    Sketcher.Constraint("Tangent", 21, 1, 22, 1),
    Sketcher.Constraint("Tangent", 22, 2, 23, 2),
    Sketcher.Constraint("Tangent", 23, 1, 24, 1),
    Sketcher.Constraint("Tangent", 24, 2, 25, 2),
    Sketcher.Constraint("Tangent", 25, 1, 18, 1),
    Sketcher.Constraint("Tangent", 26, 1, 27, 1),
    Sketcher.Constraint("Tangent", 27, 2, 28, 2),
    Sketcher.Constraint("Tangent", 28, 1, 29, 1),
    Sketcher.Constraint("Tangent", 29, 2, 30, 2),
    Sketcher.Constraint("Tangent", 30, 1, 31, 1),
    Sketcher.Constraint("Tangent", 31, 2, 32, 2),
    Sketcher.Constraint("Tangent", 32, 1, 33, 1),
    Sketcher.Constraint("Tangent", 33, 2, 26, 2),
    Sketcher.Constraint("Tangent", 34, 2, 35, 2),
    Sketcher.Constraint("Tangent", 35, 1, 36, 1),
    Sketcher.Constraint("Coincident", 36, 2, 37, 2),
    Sketcher.Constraint("Tangent", 37, 1, 38, 2),
    Sketcher.Constraint("Coincident", 38, 1, 34, 1),
    Sketcher.Constraint("Tangent", 39, 2, 40, 2),
    Sketcher.Constraint("Tangent", 40, 1, 41, 1),
    Sketcher.Constraint("Coincident", 41, 2, 42, 2),
    Sketcher.Constraint("Tangent", 42, 1, 43, 2),
    Sketcher.Constraint("Coincident", 43, 1, 39, 1),
    Sketcher.Constraint("Horizontal", 0),
    Sketcher.Constraint("Vertical", 2),
    Sketcher.Constraint("Horizontal", 4),
    Sketcher.Constraint("Vertical", 6),
    Sketcher.Constraint("Horizontal", 8),
    Sketcher.Constraint("Horizontal", 10),
    Sketcher.Constraint("Horizontal", 13),
    Sketcher.Constraint("Horizontal", 15),
    Sketcher.Constraint("Vertical", 18),
    Sketcher.Constraint("Horizontal", 20),
    Sketcher.Constraint("Vertical", 22),
    Sketcher.Constraint("Horizontal", 24),
    Sketcher.Constraint("Horizontal", 27),
    Sketcher.Constraint("Vertical", 29),
    Sketcher.Constraint("Horizontal", 31),
    Sketcher.Constraint("Vertical", 33),
    Sketcher.Constraint("Horizontal", 34),
    Sketcher.Constraint("Horizontal", 36),
    Sketcher.Constraint("Horizontal", 39),
    Sketcher.Constraint("Horizontal", 41),
    Sketcher.Constraint("Equal", 1, 3),
    Sketcher.Constraint("Equal", 3, 5),
    Sketcher.Constraint("Equal", 5, 7),
    Sketcher.Constraint("Equal", 11, 12),
    Sketcher.Constraint("Equal", 9, 14),
    Sketcher.Constraint("Equal", 12, 16),
    Sketcher.Constraint("Equal", 16, 17),
    Sketcher.Constraint("Equal", 19, 21),
    Sketcher.Constraint("Equal", 21, 23),
    Sketcher.Constraint("Equal", 23, 25),
    Sketcher.Constraint("Equal", 25, 26),
    Sketcher.Constraint("Equal", 26, 28),
    Sketcher.Constraint("Equal", 28, 30),
    Sketcher.Constraint("Equal", 30, 32),
    Sketcher.Constraint("Equal", 14, 35),
    Sketcher.Constraint("Equal", 17, 37),
    Sketcher.Constraint("Equal", 37, 38),
    Sketcher.Constraint("Equal", 35, 40),
    Sketcher.Constraint("Equal", 38, 42),
    Sketcher.Constraint("Equal", 42, 43),
    Sketcher.Constraint("Horizontal", 9, 3, 11, 3),
    Sketcher.Constraint("Horizontal", 12, 3, 14, 3),
    Sketcher.Constraint("Horizontal", 14, 3, 16, 3),
    Sketcher.Constraint("Horizontal", 35, 3, 37, 3),
    Sketcher.Constraint("Horizontal", 38, 3, 40, 3),
    Sketcher.Constraint("Horizontal", 40, 3, 42, 3),
    Sketcher.Constraint("Horizontal", 17, 3, 11, 1),
    Sketcher.Constraint("Horizontal", 11, 1, 16, 1),
    Sketcher.Constraint("Horizontal", 43, 3, 37, 1),
    Sketcher.Constraint("Horizontal", 37, 1, 42, 1),
    Sketcher.Constraint("Vertical", 9, 3, 35, 3),
    Sketcher.Constraint("Vertical", 12, 3, 37, 3),
    Sketcher.Constraint("Vertical", 14, 3, 40, 3),
    Sketcher.Constraint("Vertical", 17, 3, 42, 3),
    Sketcher.Constraint("Equal", 10, 13),
    Sketcher.Constraint("Radius", 1, Q("5 mm")),
    Sketcher.Constraint("Radius", 11, Q("3 mm")),
    Sketcher.Constraint("Radius", 19, Q("1 mm")),
    Sketcher.Constraint("DistanceX", 0, 2, 0, 1, Q("110 mm")),
    Sketcher.Constraint("DistanceX", 20, 1, 20, 2, Q("30 mm")),
    Sketcher.Constraint("DistanceY", 18, 1, 18, 2, Q("21 mm")),
    Sketcher.Constraint("Radius", 9, Q("1.85 mm")),
    Sketcher.Constraint("DistanceY", 2, 2, 2, 1, Q("71.1 mm")),
    Sketcher.Constraint("DistanceX", 1, 3, -1, 1, Q("5 mm")),
    Sketcher.Constraint("DistanceY", 3, 3, -1, 1, Q("5 mm")),
    Sketcher.Constraint("DistanceX", 28, 3, -1, 1, Q("1 mm")),
    Sketcher.Constraint("DistanceX", 27, 2, 27, 1, Q("22.74 mm")),
    Sketcher.Constraint("DistanceY", 29, 1, 29, 2, Q("11.66 mm")),
    Sketcher.Constraint("DistanceX", -1, 1, 19, 3, Q("51.3 mm")),
    Sketcher.Constraint("DistanceY", -1, 1, 19, 3, Q("31.6 mm")),
    Sketcher.Constraint("DistanceY", -1, 1, 30, 3, Q("50.2 mm")),
    Sketcher.Constraint("DistanceY", -1, 1, 8, 2, Q("1.9 mm")),
    Sketcher.Constraint("DistanceY", -1, 1, 34, 2, Q("55.5 mm")),
    Sketcher.Constraint("DistanceX", -1, 1, 9, 3, Q("3.75 mm")),
    Sketcher.Constraint("DistanceX", -1, 1, 11, 3, Q("10.75 mm")),
    Sketcher.Constraint("DistanceX", -1, 1, 14, 3, Q("96.25 mm")),
])
pad7 = body2.newObject("PartDesign::Pad", "Pad006")
pad7.Profile = sketch7
pad7.Length = 3

doc.recompute()
